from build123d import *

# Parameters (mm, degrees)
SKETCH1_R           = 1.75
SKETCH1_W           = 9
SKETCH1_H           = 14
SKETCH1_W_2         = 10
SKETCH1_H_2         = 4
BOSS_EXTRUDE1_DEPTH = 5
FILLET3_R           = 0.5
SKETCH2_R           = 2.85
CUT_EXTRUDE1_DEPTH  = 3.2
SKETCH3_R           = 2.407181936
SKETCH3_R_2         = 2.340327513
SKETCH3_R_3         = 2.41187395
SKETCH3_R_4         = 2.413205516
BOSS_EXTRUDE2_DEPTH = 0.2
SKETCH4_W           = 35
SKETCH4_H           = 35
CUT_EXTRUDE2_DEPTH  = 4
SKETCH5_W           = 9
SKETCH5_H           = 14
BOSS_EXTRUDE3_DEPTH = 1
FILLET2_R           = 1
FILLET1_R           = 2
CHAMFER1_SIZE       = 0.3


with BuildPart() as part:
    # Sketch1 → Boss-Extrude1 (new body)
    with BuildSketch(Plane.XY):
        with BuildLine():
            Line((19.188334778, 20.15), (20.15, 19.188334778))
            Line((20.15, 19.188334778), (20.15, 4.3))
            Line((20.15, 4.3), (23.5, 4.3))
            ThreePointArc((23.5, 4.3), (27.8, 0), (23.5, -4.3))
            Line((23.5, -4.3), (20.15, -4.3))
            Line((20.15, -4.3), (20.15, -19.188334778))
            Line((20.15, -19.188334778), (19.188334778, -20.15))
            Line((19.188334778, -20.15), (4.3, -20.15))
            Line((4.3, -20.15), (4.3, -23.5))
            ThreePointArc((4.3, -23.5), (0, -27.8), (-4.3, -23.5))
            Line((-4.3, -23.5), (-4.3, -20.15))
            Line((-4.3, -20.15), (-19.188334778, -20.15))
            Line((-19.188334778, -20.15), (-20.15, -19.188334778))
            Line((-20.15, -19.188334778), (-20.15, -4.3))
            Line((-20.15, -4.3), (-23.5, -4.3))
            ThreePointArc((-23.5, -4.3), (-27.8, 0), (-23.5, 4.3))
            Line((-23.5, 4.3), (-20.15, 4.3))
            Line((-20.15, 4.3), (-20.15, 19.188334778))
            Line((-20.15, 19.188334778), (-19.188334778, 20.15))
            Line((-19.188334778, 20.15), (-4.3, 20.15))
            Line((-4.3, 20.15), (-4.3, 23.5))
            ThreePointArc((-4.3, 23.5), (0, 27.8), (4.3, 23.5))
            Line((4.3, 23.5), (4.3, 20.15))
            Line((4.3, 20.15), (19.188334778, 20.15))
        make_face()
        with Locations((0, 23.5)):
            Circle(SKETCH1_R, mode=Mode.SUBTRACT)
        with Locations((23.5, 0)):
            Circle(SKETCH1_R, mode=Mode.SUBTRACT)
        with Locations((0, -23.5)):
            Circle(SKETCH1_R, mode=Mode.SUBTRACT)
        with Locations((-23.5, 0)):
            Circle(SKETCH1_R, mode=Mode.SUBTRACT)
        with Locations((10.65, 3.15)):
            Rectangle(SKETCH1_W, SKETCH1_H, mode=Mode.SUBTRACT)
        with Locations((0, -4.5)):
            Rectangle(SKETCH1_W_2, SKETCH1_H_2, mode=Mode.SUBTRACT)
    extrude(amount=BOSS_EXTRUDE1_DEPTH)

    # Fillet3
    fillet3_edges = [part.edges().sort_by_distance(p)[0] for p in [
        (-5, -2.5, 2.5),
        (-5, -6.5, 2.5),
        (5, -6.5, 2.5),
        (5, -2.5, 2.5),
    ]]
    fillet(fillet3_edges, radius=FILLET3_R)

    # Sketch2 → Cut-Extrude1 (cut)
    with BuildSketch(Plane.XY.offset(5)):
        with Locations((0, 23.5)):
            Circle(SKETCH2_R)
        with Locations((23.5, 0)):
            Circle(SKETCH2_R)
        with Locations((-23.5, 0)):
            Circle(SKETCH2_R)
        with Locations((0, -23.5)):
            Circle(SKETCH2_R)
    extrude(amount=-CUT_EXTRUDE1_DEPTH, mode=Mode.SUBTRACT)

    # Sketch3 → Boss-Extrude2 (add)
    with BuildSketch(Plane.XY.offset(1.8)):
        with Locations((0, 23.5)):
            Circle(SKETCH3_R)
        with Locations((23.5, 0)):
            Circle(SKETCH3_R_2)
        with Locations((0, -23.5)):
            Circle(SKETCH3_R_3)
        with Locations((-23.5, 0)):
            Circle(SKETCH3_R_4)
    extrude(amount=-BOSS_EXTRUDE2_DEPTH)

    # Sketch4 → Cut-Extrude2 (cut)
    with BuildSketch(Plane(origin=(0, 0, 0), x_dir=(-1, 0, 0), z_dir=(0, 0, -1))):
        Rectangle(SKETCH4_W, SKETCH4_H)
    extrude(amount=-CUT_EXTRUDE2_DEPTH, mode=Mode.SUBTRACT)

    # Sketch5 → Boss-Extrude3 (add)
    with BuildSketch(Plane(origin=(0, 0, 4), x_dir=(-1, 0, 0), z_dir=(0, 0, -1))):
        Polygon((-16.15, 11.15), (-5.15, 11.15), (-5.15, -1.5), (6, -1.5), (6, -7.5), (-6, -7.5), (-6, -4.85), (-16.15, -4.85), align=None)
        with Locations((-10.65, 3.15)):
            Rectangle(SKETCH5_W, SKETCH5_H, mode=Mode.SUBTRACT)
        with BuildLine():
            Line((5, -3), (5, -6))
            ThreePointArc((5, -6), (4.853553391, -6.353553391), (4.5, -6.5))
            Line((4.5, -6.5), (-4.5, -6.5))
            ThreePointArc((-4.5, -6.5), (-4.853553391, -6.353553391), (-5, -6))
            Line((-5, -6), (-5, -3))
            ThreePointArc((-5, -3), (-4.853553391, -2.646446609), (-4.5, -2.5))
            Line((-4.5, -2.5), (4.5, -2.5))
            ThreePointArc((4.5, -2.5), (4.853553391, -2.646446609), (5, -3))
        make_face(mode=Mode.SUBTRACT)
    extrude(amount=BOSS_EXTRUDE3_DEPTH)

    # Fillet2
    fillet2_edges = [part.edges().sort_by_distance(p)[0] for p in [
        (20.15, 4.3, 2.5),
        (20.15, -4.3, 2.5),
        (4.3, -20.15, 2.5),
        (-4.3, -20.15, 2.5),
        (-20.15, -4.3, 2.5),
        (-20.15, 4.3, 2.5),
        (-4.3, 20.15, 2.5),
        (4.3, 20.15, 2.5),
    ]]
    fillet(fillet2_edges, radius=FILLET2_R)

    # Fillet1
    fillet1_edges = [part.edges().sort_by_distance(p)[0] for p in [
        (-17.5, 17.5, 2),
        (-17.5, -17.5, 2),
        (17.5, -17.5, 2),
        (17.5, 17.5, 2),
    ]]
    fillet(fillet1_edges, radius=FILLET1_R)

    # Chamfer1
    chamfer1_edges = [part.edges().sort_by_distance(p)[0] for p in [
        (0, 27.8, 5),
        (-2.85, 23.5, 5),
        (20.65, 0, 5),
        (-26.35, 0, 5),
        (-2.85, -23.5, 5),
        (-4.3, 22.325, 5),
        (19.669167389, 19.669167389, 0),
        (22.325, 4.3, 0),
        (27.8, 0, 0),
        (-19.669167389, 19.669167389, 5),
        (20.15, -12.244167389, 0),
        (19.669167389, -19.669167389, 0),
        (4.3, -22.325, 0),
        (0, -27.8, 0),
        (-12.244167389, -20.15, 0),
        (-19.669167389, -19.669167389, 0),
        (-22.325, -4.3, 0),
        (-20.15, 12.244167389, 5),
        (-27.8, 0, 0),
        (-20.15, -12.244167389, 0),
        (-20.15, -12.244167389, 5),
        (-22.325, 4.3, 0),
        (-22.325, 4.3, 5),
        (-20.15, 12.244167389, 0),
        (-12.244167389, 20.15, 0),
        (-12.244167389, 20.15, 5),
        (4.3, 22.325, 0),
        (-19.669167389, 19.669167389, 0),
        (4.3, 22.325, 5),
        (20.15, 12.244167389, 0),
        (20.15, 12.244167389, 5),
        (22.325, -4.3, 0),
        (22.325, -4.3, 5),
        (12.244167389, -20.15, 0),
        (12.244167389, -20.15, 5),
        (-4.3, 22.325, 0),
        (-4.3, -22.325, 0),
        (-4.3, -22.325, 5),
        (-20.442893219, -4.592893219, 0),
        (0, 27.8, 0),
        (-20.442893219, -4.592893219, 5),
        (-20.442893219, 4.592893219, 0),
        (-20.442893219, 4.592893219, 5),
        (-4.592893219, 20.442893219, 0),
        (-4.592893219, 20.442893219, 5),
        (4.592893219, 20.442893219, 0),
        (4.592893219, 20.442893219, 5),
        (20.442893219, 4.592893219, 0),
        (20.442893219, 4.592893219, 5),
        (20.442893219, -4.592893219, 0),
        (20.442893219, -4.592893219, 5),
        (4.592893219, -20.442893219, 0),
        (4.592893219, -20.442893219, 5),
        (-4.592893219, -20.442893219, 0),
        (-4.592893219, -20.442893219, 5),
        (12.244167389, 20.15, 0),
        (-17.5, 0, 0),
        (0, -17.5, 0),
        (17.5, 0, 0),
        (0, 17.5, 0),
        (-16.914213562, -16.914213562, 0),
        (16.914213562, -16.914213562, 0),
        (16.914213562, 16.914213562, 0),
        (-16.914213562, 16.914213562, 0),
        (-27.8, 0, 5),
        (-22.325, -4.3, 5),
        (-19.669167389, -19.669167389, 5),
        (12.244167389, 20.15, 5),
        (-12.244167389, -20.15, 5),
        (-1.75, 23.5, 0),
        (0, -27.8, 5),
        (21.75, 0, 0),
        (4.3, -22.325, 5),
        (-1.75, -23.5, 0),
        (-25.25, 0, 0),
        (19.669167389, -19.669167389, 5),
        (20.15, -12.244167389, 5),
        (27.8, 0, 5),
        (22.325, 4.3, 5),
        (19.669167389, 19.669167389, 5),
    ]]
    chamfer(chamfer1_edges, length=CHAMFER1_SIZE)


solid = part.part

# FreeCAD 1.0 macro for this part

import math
import FreeCAD as App
import Part
import Sketcher


def edges_at(feature, points):
    """Names of the edges that pass closest to the given points."""
    edges = feature.Shape.Edges
    near = lambda p: min(range(len(edges)), key=lambda i: edges[i].distToShape(Part.Vertex(*p))[0])
    return sorted({f"Edge{near(p) + 1}" for p in points})


def add_polygon(sketch, points):
    """Adds a closed chain of lines whose ends are joined by coincident constraints."""
    first, n = sketch.GeometryCount, len(points)
    for a, b in zip(points, points[1:] + points[:1]):
        sketch.addGeometry(Part.LineSegment(App.Vector(*a, 0), App.Vector(*b, 0)), False)
    for i in range(n):
        sketch.addConstraint(Sketcher.Constraint("Coincident", first + i, 2, first + (i + 1) % n, 1))

doc = App.newDocument("Part")
body = doc.addObject("PartDesign::Body", "Body")

# Sketch on XY plane
sketch1 = doc.addObject("Sketcher::SketchObject", "Sketch")
body.addObject(sketch1)
sketch1.AttachmentSupport = (doc.XY_Plane, [""])
sketch1.MapMode = "FlatFace"
sketch1.addGeometry(Part.LineSegment(App.Vector(20.1, 19.2, 0), App.Vector(19.2, 20.1, 0)), False)  # 0
sketch1.addGeometry(Part.LineSegment(App.Vector(19.2, 20.1, 0), App.Vector(4.3, 20.1, 0)), False)  # 1
sketch1.addGeometry(Part.LineSegment(App.Vector(4.3, 20.1, 0), App.Vector(4.3, 23.5, 0)), False)  # 2
sketch1.addGeometry(Part.ArcOfCircle(Part.Circle(App.Vector(0, 23.5, 0), App.Vector(0, 0, 1), 4.3), math.radians(0), math.radians(180)), False)  # 3
sketch1.addGeometry(Part.LineSegment(App.Vector(-4.3, 23.5, 0), App.Vector(-4.3, 20.1, 0)), False)  # 4
sketch1.addGeometry(Part.LineSegment(App.Vector(-4.3, 20.1, 0), App.Vector(-19.2, 20.1, 0)), False)  # 5
sketch1.addGeometry(Part.LineSegment(App.Vector(-19.2, 20.1, 0), App.Vector(-20.1, 19.2, 0)), False)  # 6
sketch1.addGeometry(Part.LineSegment(App.Vector(-20.1, 19.2, 0), App.Vector(-20.1, 4.3, 0)), False)  # 7
sketch1.addGeometry(Part.LineSegment(App.Vector(-20.1, 4.3, 0), App.Vector(-23.5, 4.3, 0)), False)  # 8
sketch1.addGeometry(Part.ArcOfCircle(Part.Circle(App.Vector(-23.5, 0, 0), App.Vector(0, 0, 1), 4.3), math.radians(90), math.radians(270)), False)  # 9
sketch1.addGeometry(Part.LineSegment(App.Vector(-23.5, -4.3, 0), App.Vector(-20.1, -4.3, 0)), False)  # 10
sketch1.addGeometry(Part.LineSegment(App.Vector(-20.1, -4.3, 0), App.Vector(-20.1, -19.2, 0)), False)  # 11
sketch1.addGeometry(Part.LineSegment(App.Vector(-20.1, -19.2, 0), App.Vector(-19.2, -20.1, 0)), False)  # 12
sketch1.addGeometry(Part.LineSegment(App.Vector(-19.2, -20.1, 0), App.Vector(-4.3, -20.1, 0)), False)  # 13
sketch1.addGeometry(Part.LineSegment(App.Vector(-4.3, -20.1, 0), App.Vector(-4.3, -23.5, 0)), False)  # 14
sketch1.addGeometry(Part.ArcOfCircle(Part.Circle(App.Vector(0, -23.5, 0), App.Vector(0, 0, 1), 4.3), math.radians(180), math.radians(360)), False)  # 15
sketch1.addGeometry(Part.LineSegment(App.Vector(4.3, -23.5, 0), App.Vector(4.3, -20.1, 0)), False)  # 16
sketch1.addGeometry(Part.LineSegment(App.Vector(4.3, -20.1, 0), App.Vector(19.2, -20.1, 0)), False)  # 17
sketch1.addGeometry(Part.LineSegment(App.Vector(19.2, -20.1, 0), App.Vector(20.1, -19.2, 0)), False)  # 18
sketch1.addGeometry(Part.LineSegment(App.Vector(20.1, -19.2, 0), App.Vector(20.1, -4.3, 0)), False)  # 19
sketch1.addGeometry(Part.LineSegment(App.Vector(20.1, -4.3, 0), App.Vector(23.5, -4.3, 0)), False)  # 20
sketch1.addGeometry(Part.ArcOfCircle(Part.Circle(App.Vector(23.5, 0, 0), App.Vector(0, 0, 1), 4.3), math.radians(-90), math.radians(90)), False)  # 21
sketch1.addGeometry(Part.LineSegment(App.Vector(23.5, 4.3, 0), App.Vector(20.1, 4.3, 0)), False)  # 22
sketch1.addGeometry(Part.LineSegment(App.Vector(20.1, 4.3, 0), App.Vector(20.1, 19.2, 0)), False)  # 23
sketch1.addGeometry(Part.Circle(App.Vector(0, -23.5, 0), App.Vector(0, 0, 1), 1.8), False)  # 24
add_polygon(sketch1, [(-5, -6.5), (-5, -2.5), (5, -2.5), (5, -6.5)])  # lines 25-28
sketch1.addGeometry(Part.Circle(App.Vector(23.5, 0, 0), App.Vector(0, 0, 1), 1.8), False)  # 29
add_polygon(sketch1, [(6.2, -3.9), (6.2, 10.2), (15.2, 10.2), (15.2, -3.9)])  # lines 30-33
sketch1.addGeometry(Part.Circle(App.Vector(-23.5, 0, 0), App.Vector(0, 0, 1), 1.8), False)  # 34
sketch1.addGeometry(Part.Circle(App.Vector(0, 23.5, 0), App.Vector(0, 0, 1), 1.8), False)  # 35
sketch1.addConstraint([
    Sketcher.Constraint("Coincident", 0, 2, 1, 1),
    Sketcher.Constraint("Coincident", 1, 2, 2, 1),
    Sketcher.Constraint("Tangent", 2, 2, 3, 1),
    Sketcher.Constraint("Tangent", 3, 2, 4, 1),
    Sketcher.Constraint("Coincident", 4, 2, 5, 1),
    Sketcher.Constraint("Coincident", 5, 2, 6, 1),
    Sketcher.Constraint("Coincident", 6, 2, 7, 1),
    Sketcher.Constraint("Coincident", 7, 2, 8, 1),
    Sketcher.Constraint("Tangent", 8, 2, 9, 1),
    Sketcher.Constraint("Tangent", 9, 2, 10, 1),
    Sketcher.Constraint("Coincident", 10, 2, 11, 1),
    Sketcher.Constraint("Coincident", 11, 2, 12, 1),
    Sketcher.Constraint("Coincident", 12, 2, 13, 1),
    Sketcher.Constraint("Coincident", 13, 2, 14, 1),
    Sketcher.Constraint("Tangent", 14, 2, 15, 1),
    Sketcher.Constraint("Tangent", 15, 2, 16, 1),
    Sketcher.Constraint("Coincident", 16, 2, 17, 1),
    Sketcher.Constraint("Coincident", 17, 2, 18, 1),
    Sketcher.Constraint("Coincident", 18, 2, 19, 1),
    Sketcher.Constraint("Coincident", 19, 2, 20, 1),
    Sketcher.Constraint("Tangent", 20, 2, 21, 1),
    Sketcher.Constraint("Tangent", 21, 2, 22, 1),
    Sketcher.Constraint("Coincident", 22, 2, 23, 1),
    Sketcher.Constraint("Coincident", 23, 2, 0, 1),
    Sketcher.Constraint("Horizontal", 1),
    Sketcher.Constraint("Vertical", 2),
    Sketcher.Constraint("Vertical", 4),
    Sketcher.Constraint("Horizontal", 5),
    Sketcher.Constraint("Vertical", 7),
    Sketcher.Constraint("Horizontal", 8),
    Sketcher.Constraint("Horizontal", 10),
    Sketcher.Constraint("Vertical", 11),
    Sketcher.Constraint("Horizontal", 13),
    Sketcher.Constraint("Vertical", 14),
    Sketcher.Constraint("Vertical", 16),
    Sketcher.Constraint("Horizontal", 17),
    Sketcher.Constraint("Vertical", 19),
    Sketcher.Constraint("Horizontal", 20),
    Sketcher.Constraint("Horizontal", 22),
    Sketcher.Constraint("Vertical", 23),
    Sketcher.Constraint("Vertical", 25),
    Sketcher.Constraint("Horizontal", 26),
    Sketcher.Constraint("Vertical", 27),
    Sketcher.Constraint("Horizontal", 28),
    Sketcher.Constraint("Vertical", 30),
    Sketcher.Constraint("Horizontal", 31),
    Sketcher.Constraint("Vertical", 32),
    Sketcher.Constraint("Horizontal", 33),
    Sketcher.Constraint("Coincident", 24, 3, 15, 3),
    Sketcher.Constraint("Coincident", 29, 3, 21, 3),
    Sketcher.Constraint("Coincident", 34, 3, 9, 3),
    Sketcher.Constraint("Coincident", 35, 3, 3, 3),
    Sketcher.Constraint("Equal", 3, 9),
    Sketcher.Constraint("Equal", 9, 15),
    Sketcher.Constraint("Equal", 15, 21),
    Sketcher.Constraint("Equal", 24, 29),
    Sketcher.Constraint("Equal", 29, 34),
    Sketcher.Constraint("Equal", 34, 35),
    Sketcher.Constraint("Symmetric", 3, 3, 15, 3, -1, 1),
    Sketcher.Constraint("Symmetric", 9, 3, 21, 3, -1, 1),
    Sketcher.Constraint("Symmetric", 0, 2, 12, 2, -1, 1),
    Sketcher.Constraint("Symmetric", 5, 2, 17, 2, -1, 1),
    Sketcher.Constraint("Symmetric", 6, 2, 18, 2, -1, 1),
    Sketcher.Constraint("Symmetric", 11, 2, 23, 2, -1, 1),
    Sketcher.Constraint("Symmetric", 1, 2, 4, 2, -2),
    Sketcher.Constraint("Symmetric", 11, 2, 18, 2, -2),
    Sketcher.Constraint("PointOnObject", 9, 3, -1),
    Sketcher.Constraint("Perpendicular", 0, 6),
    Sketcher.Constraint("Vertical", 5, 2, 12, 2),
    Sketcher.Constraint("Equal", 22, 2),
    Sketcher.Constraint("Equal", 17, 7),
    Sketcher.Constraint("Diameter", 24, 3.5),
    Sketcher.Constraint("Radius", 3, 4.3),
    Sketcher.Constraint("DistanceX", 26, 1, 26, 2, 10.0),
    Sketcher.Constraint("DistanceX", 31, 1, 31, 2, 9.0),
    Sketcher.Constraint("DistanceY", 25, 1, 25, 2, 4.0),
    Sketcher.Constraint("DistanceY", 30, 1, 30, 2, 14.0),
    Sketcher.Constraint("DistanceX", 25, 2, -1, 1, 5.0),
    Sketcher.Constraint("DistanceY", 15, 3, 3, 3, 47.0),
    Sketcher.Constraint("DistanceY", 30, 2, 1, 2, 10.0),
    Sketcher.Constraint("DistanceX", 31, 2, 22, 2, 5.0),
    Sketcher.Constraint("DistanceX", 8, 2, 8, 1, 3.35),
    Sketcher.Constraint("DistanceY", 25, 2, -1, 1, 2.5),
    Sketcher.Constraint("Distance", 0, 1.36),
])
pad1 = doc.addObject("PartDesign::Pad", "Pad")
body.addObject(pad1)
pad1.Profile = sketch1
pad1.Length = 5
doc.recompute()

fillet = doc.addObject("PartDesign::Fillet", "Fillet")
body.addObject(fillet)
fillet.Base = (pad1, edges_at(pad1, [
    (-5, -2.5, 2.5),
    (-5, -6.5, 2.5),
    (5, -6.5, 2.5),
    (5, -2.5, 2.5),
]))
fillet.Radius = 0.5

# Sketch on XY plane
sketch2 = doc.addObject("Sketcher::SketchObject", "Sketch001")
body.addObject(sketch2)
sketch2.AttachmentSupport = (doc.XY_Plane, [""])
sketch2.MapMode = "FlatFace"
sketch2.AttachmentOffset = App.Placement(App.Vector(0, 0, 5), App.Rotation())
sketch2.addGeometry([
    Part.Circle(App.Vector(0, 23.5, 0), App.Vector(0, 0, 1), 2.9),
    Part.Circle(App.Vector(23.5, 0, 0), App.Vector(0, 0, 1), 2.9),
    Part.Circle(App.Vector(-23.5, 0, 0), App.Vector(0, 0, 1), 2.9),
    Part.Circle(App.Vector(0, -23.5, 0), App.Vector(0, 0, 1), 2.9),
], False)
sketch2.addConstraint([
    Sketcher.Constraint("Equal", 0, 1),
    Sketcher.Constraint("Equal", 1, 2),
    Sketcher.Constraint("Equal", 2, 3),
    Sketcher.Constraint("Symmetric", 1, 3, 2, 3, -1, 1),
    Sketcher.Constraint("Symmetric", 0, 3, 3, 3, -1, 1),
    Sketcher.Constraint("PointOnObject", 0, 3, -2),
    Sketcher.Constraint("PointOnObject", 1, 3, -1),
    Sketcher.Constraint("Diameter", 0, 5.7),
    Sketcher.Constraint("DistanceX", 2, 3, 1, 3, 47.0),
    Sketcher.Constraint("DistanceY", 3, 3, 0, 3, 47.0),
])
pocket1 = doc.addObject("PartDesign::Pocket", "Pocket")
body.addObject(pocket1)
pocket1.Profile = sketch2
pocket1.Length = 3.2

# Sketch on XY plane
sketch3 = doc.addObject("Sketcher::SketchObject", "Sketch002")
body.addObject(sketch3)
sketch3.AttachmentSupport = (doc.XY_Plane, [""])
sketch3.MapMode = "FlatFace"
sketch3.AttachmentOffset = App.Placement(App.Vector(0, 0, 1.8), App.Rotation())
sketch3.addGeometry([
    Part.Circle(App.Vector(0, 23.5, 0), App.Vector(0, 0, 1), 2.4),
    Part.Circle(App.Vector(23.5, 0, 0), App.Vector(0, 0, 1), 2.3),
    Part.Circle(App.Vector(0, -23.5, 0), App.Vector(0, 0, 1), 2.4),
    Part.Circle(App.Vector(-23.5, 0, 0), App.Vector(0, 0, 1), 2.4),
], False)
sketch3.addConstraint([
    Sketcher.Constraint("Symmetric", 0, 3, 2, 3, -1, 1),
    Sketcher.Constraint("Symmetric", 1, 3, 3, 3, -1, 1),
    Sketcher.Constraint("PointOnObject", 0, 3, -2),
    Sketcher.Constraint("PointOnObject", 1, 3, -1),
    Sketcher.Constraint("DistanceY", 2, 3, 0, 3, 47.0),
    Sketcher.Constraint("DistanceX", 3, 3, 1, 3, 47.0),
    Sketcher.Constraint("Diameter", 3, 4.826411),
    Sketcher.Constraint("Diameter", 0, 4.814364),
    Sketcher.Constraint("Diameter", 1, 4.680655),
    Sketcher.Constraint("Diameter", 2, 4.823748),
])
pad2 = doc.addObject("PartDesign::Pad", "Pad001")
body.addObject(pad2)
pad2.Profile = sketch3
pad2.Length = 0.2
pad2.Reversed = True

# Sketch on XY plane
sketch4 = doc.addObject("Sketcher::SketchObject", "Sketch003")
body.addObject(sketch4)
sketch4.AttachmentSupport = (doc.XY_Plane, [""])
sketch4.MapMode = "FlatFace"
add_polygon(sketch4, [(18, 18), (18, -18), (-18, -18), (-18, 18)])  # lines 0-3
sketch4.addConstraint([
    Sketcher.Constraint("Vertical", 0),
    Sketcher.Constraint("Horizontal", 1),
    Sketcher.Constraint("Vertical", 2),
    Sketcher.Constraint("Horizontal", 3),
    Sketcher.Constraint("Symmetric", 0, 2, 2, 2, -1, 1),
    Sketcher.Constraint("Equal", 3, 0),
    Sketcher.Constraint("DistanceX", 1, 2, 1, 1, 35.0),
])
pocket2 = doc.addObject("PartDesign::Pocket", "Pocket001")
body.addObject(pocket2)
pocket2.Profile = sketch4
pocket2.Length = 4
pocket2.Reversed = True

# Sketch on XY plane
sketch5 = doc.addObject("Sketcher::SketchObject", "Sketch004")
body.addObject(sketch5)
sketch5.AttachmentSupport = (doc.XY_Plane, [""])
sketch5.MapMode = "FlatFace"
sketch5.AttachmentOffset = App.Placement(App.Vector(0, 0, 4), App.Rotation())
add_polygon(sketch5, [(5.15, 11.15), (16.15, 11.15), (16.15, -4.85), (6, -4.85), (6, -7.5), (-6, -7.5), (-6, -1.5), (5.15, -1.5)])  # lines 0-7
sketch5.addGeometry(Part.LineSegment(App.Vector(-5, -3, 0), App.Vector(-5, -6, 0)), False)  # 8
sketch5.addGeometry(Part.ArcOfCircle(Part.Circle(App.Vector(-4.5, -6, 0), App.Vector(0, 0, 1), 0.5), math.radians(180), math.radians(270)), False)  # 9
sketch5.addGeometry(Part.LineSegment(App.Vector(-4.5, -6.5, 0), App.Vector(4.5, -6.5, 0)), False)  # 10
sketch5.addGeometry(Part.ArcOfCircle(Part.Circle(App.Vector(4.5, -6, 0), App.Vector(0, 0, 1), 0.5), math.radians(-90), math.radians(0)), False)  # 11
sketch5.addGeometry(Part.LineSegment(App.Vector(5, -6, 0), App.Vector(5, -3, 0)), False)  # 12
sketch5.addGeometry(Part.ArcOfCircle(Part.Circle(App.Vector(4.5, -3, 0), App.Vector(0, 0, 1), 0.5), math.radians(0), math.radians(90)), False)  # 13
sketch5.addGeometry(Part.LineSegment(App.Vector(4.5, -2.5, 0), App.Vector(-4.5, -2.5, 0)), False)  # 14
sketch5.addGeometry(Part.ArcOfCircle(Part.Circle(App.Vector(-4.5, -3, 0), App.Vector(0, 0, 1), 0.5), math.radians(90), math.radians(180)), False)  # 15
add_polygon(sketch5, [(15.15, -3.85), (15.15, 10.15), (6.15, 10.15), (6.15, -3.85)])  # lines 16-19
sketch5.addConstraint([
    Sketcher.Constraint("Tangent", 8, 2, 9, 1),
    Sketcher.Constraint("Tangent", 9, 2, 10, 1),
    Sketcher.Constraint("Tangent", 10, 2, 11, 1),
    Sketcher.Constraint("Tangent", 11, 2, 12, 1),
    Sketcher.Constraint("Tangent", 12, 2, 13, 1),
    Sketcher.Constraint("Tangent", 13, 2, 14, 1),
    Sketcher.Constraint("Tangent", 14, 2, 15, 1),
    Sketcher.Constraint("Tangent", 15, 2, 8, 1),
    Sketcher.Constraint("Horizontal", 0),
    Sketcher.Constraint("Vertical", 1),
    Sketcher.Constraint("Horizontal", 2),
    Sketcher.Constraint("Vertical", 3),
    Sketcher.Constraint("Horizontal", 4),
    Sketcher.Constraint("Vertical", 5),
    Sketcher.Constraint("Horizontal", 6),
    Sketcher.Constraint("Vertical", 7),
    Sketcher.Constraint("Vertical", 8),
    Sketcher.Constraint("Horizontal", 10),
    Sketcher.Constraint("Vertical", 12),
    Sketcher.Constraint("Horizontal", 14),
    Sketcher.Constraint("Vertical", 16),
    Sketcher.Constraint("Horizontal", 17),
    Sketcher.Constraint("Vertical", 18),
    Sketcher.Constraint("Horizontal", 19),
    Sketcher.Constraint("Equal", 9, 11),
    Sketcher.Constraint("Equal", 11, 13),
    Sketcher.Constraint("Equal", 13, 15),
    Sketcher.Constraint("Equal", 14, 17),
    Sketcher.Constraint("Radius", 9, 0.5),
    Sketcher.Constraint("DistanceX", 0, 1, 0, 2, 11.0),
    Sketcher.Constraint("DistanceX", 4, 2, 4, 1, 12.0),
    Sketcher.Constraint("DistanceX", 10, 1, 10, 2, 9.0),
    Sketcher.Constraint("DistanceY", 1, 2, 1, 1, 16.0),
    Sketcher.Constraint("DistanceY", 5, 1, 5, 2, 6.0),
    Sketcher.Constraint("DistanceY", 8, 2, 8, 1, 3.0),
    Sketcher.Constraint("DistanceY", 16, 1, 16, 2, 14.0),
    Sketcher.Constraint("DistanceY", 9, 3, -1, 1, 6.0),
    Sketcher.Constraint("DistanceX", -1, 1, 2, 2, 6.0),
    Sketcher.Constraint("DistanceX", 8, 2, -1, 1, 5.0),
    Sketcher.Constraint("DistanceY", 4, 2, 9, 2, 1.0),
    Sketcher.Constraint("DistanceX", 16, 2, 0, 2, 1.0),
    Sketcher.Constraint("DistanceY", 16, 2, 0, 2, 1.0),
    Sketcher.Constraint("DistanceX", 2, 2, 2, 1, 10.15),
    Sketcher.Constraint("DistanceY", 3, 2, 3, 1, 2.65),
])
pad3 = doc.addObject("PartDesign::Pad", "Pad002")
body.addObject(pad3)
pad3.Profile = sketch5
pad3.Length = 1
pad3.Reversed = True
doc.recompute()

fillet2 = doc.addObject("PartDesign::Fillet", "Fillet001")
body.addObject(fillet2)
fillet2.Base = (pad3, edges_at(pad3, [
    (20.15, 4.3, 2.5),
    (20.15, -4.3, 2.5),
    (4.3, -20.15, 2.5),
    (-4.3, -20.15, 2.5),
    (-20.15, -4.3, 2.5),
    (-20.15, 4.3, 2.5),
    (-4.3, 20.15, 2.5),
    (4.3, 20.15, 2.5),
]))
fillet2.Radius = 1
doc.recompute()

fillet3 = doc.addObject("PartDesign::Fillet", "Fillet002")
body.addObject(fillet3)
fillet3.Base = (fillet2, edges_at(fillet2, [
    (-17.5, 17.5, 2),
    (-17.5, -17.5, 2),
    (17.5, -17.5, 2),
    (17.5, 17.5, 2),
]))
fillet3.Radius = 2
doc.recompute()

chamfer = doc.addObject("PartDesign::Chamfer", "Chamfer")
body.addObject(chamfer)
chamfer.Base = (fillet3, edges_at(fillet3, [
    (0, 27.8, 5),
    (-2.85, 23.5, 5),
    (20.65, 0, 5),
    (-26.35, 0, 5),
    (-2.85, -23.5, 5),
    (-4.3, 22.325, 5),
    (19.669, 19.669, 0),
    (22.325, 4.3, 0),
    (27.8, 0, 0),
    (-19.669, 19.669, 5),
    (20.15, -12.244, 0),
    (19.669, -19.669, 0),
    (4.3, -22.325, 0),
    (0, -27.8, 0),
    (-12.244, -20.15, 0),
    (-19.669, -19.669, 0),
    (-22.325, -4.3, 0),
    (-20.15, 12.244, 5),
    (-27.8, 0, 0),
    (-20.15, -12.244, 0),
    (-20.15, -12.244, 5),
    (-22.325, 4.3, 0),
    (-22.325, 4.3, 5),
    (-20.15, 12.244, 0),
    (-12.244, 20.15, 0),
    (-12.244, 20.15, 5),
    (4.3, 22.325, 0),
    (-19.669, 19.669, 0),
    (4.3, 22.325, 5),
    (20.15, 12.244, 0),
    (20.15, 12.244, 5),
    (22.325, -4.3, 0),
    (22.325, -4.3, 5),
    (12.244, -20.15, 0),
    (12.244, -20.15, 5),
    (-4.3, 22.325, 0),
    (-4.3, -22.325, 0),
    (-4.3, -22.325, 5),
    (-20.443, -4.593, 0),
    (0, 27.8, 0),
    (-20.443, -4.593, 5),
    (-20.443, 4.593, 0),
    (-20.443, 4.593, 5),
    (-4.593, 20.443, 0),
    (-4.593, 20.443, 5),
    (4.593, 20.443, 0),
    (4.593, 20.443, 5),
    (20.443, 4.593, 0),
    (20.443, 4.593, 5),
    (20.443, -4.593, 0),
    (20.443, -4.593, 5),
    (4.593, -20.443, 0),
    (4.593, -20.443, 5),
    (-4.593, -20.443, 0),
    (-4.593, -20.443, 5),
    (12.244, 20.15, 0),
    (-17.5, 0, 0),
    (0, -17.5, 0),
    (17.5, 0, 0),
    (0, 17.5, 0),
    (-16.914, -16.914, 0),
    (16.914, -16.914, 0),
    (16.914, 16.914, 0),
    (-16.914, 16.914, 0),
    (-27.8, 0, 5),
    (-22.325, -4.3, 5),
    (-19.669, -19.669, 5),
    (12.244, 20.15, 5),
    (-12.244, -20.15, 5),
    (-1.75, 23.5, 0),
    (0, -27.8, 5),
    (21.75, 0, 0),
    (4.3, -22.325, 5),
    (-1.75, -23.5, 0),
    (-25.25, 0, 0),
    (19.669, -19.669, 5),
    (20.15, -12.244, 5),
    (27.8, 0, 5),
    (22.325, 4.3, 5),
    (19.669, 19.669, 5),
]))
chamfer.Size = 0.3

doc.recompute()
